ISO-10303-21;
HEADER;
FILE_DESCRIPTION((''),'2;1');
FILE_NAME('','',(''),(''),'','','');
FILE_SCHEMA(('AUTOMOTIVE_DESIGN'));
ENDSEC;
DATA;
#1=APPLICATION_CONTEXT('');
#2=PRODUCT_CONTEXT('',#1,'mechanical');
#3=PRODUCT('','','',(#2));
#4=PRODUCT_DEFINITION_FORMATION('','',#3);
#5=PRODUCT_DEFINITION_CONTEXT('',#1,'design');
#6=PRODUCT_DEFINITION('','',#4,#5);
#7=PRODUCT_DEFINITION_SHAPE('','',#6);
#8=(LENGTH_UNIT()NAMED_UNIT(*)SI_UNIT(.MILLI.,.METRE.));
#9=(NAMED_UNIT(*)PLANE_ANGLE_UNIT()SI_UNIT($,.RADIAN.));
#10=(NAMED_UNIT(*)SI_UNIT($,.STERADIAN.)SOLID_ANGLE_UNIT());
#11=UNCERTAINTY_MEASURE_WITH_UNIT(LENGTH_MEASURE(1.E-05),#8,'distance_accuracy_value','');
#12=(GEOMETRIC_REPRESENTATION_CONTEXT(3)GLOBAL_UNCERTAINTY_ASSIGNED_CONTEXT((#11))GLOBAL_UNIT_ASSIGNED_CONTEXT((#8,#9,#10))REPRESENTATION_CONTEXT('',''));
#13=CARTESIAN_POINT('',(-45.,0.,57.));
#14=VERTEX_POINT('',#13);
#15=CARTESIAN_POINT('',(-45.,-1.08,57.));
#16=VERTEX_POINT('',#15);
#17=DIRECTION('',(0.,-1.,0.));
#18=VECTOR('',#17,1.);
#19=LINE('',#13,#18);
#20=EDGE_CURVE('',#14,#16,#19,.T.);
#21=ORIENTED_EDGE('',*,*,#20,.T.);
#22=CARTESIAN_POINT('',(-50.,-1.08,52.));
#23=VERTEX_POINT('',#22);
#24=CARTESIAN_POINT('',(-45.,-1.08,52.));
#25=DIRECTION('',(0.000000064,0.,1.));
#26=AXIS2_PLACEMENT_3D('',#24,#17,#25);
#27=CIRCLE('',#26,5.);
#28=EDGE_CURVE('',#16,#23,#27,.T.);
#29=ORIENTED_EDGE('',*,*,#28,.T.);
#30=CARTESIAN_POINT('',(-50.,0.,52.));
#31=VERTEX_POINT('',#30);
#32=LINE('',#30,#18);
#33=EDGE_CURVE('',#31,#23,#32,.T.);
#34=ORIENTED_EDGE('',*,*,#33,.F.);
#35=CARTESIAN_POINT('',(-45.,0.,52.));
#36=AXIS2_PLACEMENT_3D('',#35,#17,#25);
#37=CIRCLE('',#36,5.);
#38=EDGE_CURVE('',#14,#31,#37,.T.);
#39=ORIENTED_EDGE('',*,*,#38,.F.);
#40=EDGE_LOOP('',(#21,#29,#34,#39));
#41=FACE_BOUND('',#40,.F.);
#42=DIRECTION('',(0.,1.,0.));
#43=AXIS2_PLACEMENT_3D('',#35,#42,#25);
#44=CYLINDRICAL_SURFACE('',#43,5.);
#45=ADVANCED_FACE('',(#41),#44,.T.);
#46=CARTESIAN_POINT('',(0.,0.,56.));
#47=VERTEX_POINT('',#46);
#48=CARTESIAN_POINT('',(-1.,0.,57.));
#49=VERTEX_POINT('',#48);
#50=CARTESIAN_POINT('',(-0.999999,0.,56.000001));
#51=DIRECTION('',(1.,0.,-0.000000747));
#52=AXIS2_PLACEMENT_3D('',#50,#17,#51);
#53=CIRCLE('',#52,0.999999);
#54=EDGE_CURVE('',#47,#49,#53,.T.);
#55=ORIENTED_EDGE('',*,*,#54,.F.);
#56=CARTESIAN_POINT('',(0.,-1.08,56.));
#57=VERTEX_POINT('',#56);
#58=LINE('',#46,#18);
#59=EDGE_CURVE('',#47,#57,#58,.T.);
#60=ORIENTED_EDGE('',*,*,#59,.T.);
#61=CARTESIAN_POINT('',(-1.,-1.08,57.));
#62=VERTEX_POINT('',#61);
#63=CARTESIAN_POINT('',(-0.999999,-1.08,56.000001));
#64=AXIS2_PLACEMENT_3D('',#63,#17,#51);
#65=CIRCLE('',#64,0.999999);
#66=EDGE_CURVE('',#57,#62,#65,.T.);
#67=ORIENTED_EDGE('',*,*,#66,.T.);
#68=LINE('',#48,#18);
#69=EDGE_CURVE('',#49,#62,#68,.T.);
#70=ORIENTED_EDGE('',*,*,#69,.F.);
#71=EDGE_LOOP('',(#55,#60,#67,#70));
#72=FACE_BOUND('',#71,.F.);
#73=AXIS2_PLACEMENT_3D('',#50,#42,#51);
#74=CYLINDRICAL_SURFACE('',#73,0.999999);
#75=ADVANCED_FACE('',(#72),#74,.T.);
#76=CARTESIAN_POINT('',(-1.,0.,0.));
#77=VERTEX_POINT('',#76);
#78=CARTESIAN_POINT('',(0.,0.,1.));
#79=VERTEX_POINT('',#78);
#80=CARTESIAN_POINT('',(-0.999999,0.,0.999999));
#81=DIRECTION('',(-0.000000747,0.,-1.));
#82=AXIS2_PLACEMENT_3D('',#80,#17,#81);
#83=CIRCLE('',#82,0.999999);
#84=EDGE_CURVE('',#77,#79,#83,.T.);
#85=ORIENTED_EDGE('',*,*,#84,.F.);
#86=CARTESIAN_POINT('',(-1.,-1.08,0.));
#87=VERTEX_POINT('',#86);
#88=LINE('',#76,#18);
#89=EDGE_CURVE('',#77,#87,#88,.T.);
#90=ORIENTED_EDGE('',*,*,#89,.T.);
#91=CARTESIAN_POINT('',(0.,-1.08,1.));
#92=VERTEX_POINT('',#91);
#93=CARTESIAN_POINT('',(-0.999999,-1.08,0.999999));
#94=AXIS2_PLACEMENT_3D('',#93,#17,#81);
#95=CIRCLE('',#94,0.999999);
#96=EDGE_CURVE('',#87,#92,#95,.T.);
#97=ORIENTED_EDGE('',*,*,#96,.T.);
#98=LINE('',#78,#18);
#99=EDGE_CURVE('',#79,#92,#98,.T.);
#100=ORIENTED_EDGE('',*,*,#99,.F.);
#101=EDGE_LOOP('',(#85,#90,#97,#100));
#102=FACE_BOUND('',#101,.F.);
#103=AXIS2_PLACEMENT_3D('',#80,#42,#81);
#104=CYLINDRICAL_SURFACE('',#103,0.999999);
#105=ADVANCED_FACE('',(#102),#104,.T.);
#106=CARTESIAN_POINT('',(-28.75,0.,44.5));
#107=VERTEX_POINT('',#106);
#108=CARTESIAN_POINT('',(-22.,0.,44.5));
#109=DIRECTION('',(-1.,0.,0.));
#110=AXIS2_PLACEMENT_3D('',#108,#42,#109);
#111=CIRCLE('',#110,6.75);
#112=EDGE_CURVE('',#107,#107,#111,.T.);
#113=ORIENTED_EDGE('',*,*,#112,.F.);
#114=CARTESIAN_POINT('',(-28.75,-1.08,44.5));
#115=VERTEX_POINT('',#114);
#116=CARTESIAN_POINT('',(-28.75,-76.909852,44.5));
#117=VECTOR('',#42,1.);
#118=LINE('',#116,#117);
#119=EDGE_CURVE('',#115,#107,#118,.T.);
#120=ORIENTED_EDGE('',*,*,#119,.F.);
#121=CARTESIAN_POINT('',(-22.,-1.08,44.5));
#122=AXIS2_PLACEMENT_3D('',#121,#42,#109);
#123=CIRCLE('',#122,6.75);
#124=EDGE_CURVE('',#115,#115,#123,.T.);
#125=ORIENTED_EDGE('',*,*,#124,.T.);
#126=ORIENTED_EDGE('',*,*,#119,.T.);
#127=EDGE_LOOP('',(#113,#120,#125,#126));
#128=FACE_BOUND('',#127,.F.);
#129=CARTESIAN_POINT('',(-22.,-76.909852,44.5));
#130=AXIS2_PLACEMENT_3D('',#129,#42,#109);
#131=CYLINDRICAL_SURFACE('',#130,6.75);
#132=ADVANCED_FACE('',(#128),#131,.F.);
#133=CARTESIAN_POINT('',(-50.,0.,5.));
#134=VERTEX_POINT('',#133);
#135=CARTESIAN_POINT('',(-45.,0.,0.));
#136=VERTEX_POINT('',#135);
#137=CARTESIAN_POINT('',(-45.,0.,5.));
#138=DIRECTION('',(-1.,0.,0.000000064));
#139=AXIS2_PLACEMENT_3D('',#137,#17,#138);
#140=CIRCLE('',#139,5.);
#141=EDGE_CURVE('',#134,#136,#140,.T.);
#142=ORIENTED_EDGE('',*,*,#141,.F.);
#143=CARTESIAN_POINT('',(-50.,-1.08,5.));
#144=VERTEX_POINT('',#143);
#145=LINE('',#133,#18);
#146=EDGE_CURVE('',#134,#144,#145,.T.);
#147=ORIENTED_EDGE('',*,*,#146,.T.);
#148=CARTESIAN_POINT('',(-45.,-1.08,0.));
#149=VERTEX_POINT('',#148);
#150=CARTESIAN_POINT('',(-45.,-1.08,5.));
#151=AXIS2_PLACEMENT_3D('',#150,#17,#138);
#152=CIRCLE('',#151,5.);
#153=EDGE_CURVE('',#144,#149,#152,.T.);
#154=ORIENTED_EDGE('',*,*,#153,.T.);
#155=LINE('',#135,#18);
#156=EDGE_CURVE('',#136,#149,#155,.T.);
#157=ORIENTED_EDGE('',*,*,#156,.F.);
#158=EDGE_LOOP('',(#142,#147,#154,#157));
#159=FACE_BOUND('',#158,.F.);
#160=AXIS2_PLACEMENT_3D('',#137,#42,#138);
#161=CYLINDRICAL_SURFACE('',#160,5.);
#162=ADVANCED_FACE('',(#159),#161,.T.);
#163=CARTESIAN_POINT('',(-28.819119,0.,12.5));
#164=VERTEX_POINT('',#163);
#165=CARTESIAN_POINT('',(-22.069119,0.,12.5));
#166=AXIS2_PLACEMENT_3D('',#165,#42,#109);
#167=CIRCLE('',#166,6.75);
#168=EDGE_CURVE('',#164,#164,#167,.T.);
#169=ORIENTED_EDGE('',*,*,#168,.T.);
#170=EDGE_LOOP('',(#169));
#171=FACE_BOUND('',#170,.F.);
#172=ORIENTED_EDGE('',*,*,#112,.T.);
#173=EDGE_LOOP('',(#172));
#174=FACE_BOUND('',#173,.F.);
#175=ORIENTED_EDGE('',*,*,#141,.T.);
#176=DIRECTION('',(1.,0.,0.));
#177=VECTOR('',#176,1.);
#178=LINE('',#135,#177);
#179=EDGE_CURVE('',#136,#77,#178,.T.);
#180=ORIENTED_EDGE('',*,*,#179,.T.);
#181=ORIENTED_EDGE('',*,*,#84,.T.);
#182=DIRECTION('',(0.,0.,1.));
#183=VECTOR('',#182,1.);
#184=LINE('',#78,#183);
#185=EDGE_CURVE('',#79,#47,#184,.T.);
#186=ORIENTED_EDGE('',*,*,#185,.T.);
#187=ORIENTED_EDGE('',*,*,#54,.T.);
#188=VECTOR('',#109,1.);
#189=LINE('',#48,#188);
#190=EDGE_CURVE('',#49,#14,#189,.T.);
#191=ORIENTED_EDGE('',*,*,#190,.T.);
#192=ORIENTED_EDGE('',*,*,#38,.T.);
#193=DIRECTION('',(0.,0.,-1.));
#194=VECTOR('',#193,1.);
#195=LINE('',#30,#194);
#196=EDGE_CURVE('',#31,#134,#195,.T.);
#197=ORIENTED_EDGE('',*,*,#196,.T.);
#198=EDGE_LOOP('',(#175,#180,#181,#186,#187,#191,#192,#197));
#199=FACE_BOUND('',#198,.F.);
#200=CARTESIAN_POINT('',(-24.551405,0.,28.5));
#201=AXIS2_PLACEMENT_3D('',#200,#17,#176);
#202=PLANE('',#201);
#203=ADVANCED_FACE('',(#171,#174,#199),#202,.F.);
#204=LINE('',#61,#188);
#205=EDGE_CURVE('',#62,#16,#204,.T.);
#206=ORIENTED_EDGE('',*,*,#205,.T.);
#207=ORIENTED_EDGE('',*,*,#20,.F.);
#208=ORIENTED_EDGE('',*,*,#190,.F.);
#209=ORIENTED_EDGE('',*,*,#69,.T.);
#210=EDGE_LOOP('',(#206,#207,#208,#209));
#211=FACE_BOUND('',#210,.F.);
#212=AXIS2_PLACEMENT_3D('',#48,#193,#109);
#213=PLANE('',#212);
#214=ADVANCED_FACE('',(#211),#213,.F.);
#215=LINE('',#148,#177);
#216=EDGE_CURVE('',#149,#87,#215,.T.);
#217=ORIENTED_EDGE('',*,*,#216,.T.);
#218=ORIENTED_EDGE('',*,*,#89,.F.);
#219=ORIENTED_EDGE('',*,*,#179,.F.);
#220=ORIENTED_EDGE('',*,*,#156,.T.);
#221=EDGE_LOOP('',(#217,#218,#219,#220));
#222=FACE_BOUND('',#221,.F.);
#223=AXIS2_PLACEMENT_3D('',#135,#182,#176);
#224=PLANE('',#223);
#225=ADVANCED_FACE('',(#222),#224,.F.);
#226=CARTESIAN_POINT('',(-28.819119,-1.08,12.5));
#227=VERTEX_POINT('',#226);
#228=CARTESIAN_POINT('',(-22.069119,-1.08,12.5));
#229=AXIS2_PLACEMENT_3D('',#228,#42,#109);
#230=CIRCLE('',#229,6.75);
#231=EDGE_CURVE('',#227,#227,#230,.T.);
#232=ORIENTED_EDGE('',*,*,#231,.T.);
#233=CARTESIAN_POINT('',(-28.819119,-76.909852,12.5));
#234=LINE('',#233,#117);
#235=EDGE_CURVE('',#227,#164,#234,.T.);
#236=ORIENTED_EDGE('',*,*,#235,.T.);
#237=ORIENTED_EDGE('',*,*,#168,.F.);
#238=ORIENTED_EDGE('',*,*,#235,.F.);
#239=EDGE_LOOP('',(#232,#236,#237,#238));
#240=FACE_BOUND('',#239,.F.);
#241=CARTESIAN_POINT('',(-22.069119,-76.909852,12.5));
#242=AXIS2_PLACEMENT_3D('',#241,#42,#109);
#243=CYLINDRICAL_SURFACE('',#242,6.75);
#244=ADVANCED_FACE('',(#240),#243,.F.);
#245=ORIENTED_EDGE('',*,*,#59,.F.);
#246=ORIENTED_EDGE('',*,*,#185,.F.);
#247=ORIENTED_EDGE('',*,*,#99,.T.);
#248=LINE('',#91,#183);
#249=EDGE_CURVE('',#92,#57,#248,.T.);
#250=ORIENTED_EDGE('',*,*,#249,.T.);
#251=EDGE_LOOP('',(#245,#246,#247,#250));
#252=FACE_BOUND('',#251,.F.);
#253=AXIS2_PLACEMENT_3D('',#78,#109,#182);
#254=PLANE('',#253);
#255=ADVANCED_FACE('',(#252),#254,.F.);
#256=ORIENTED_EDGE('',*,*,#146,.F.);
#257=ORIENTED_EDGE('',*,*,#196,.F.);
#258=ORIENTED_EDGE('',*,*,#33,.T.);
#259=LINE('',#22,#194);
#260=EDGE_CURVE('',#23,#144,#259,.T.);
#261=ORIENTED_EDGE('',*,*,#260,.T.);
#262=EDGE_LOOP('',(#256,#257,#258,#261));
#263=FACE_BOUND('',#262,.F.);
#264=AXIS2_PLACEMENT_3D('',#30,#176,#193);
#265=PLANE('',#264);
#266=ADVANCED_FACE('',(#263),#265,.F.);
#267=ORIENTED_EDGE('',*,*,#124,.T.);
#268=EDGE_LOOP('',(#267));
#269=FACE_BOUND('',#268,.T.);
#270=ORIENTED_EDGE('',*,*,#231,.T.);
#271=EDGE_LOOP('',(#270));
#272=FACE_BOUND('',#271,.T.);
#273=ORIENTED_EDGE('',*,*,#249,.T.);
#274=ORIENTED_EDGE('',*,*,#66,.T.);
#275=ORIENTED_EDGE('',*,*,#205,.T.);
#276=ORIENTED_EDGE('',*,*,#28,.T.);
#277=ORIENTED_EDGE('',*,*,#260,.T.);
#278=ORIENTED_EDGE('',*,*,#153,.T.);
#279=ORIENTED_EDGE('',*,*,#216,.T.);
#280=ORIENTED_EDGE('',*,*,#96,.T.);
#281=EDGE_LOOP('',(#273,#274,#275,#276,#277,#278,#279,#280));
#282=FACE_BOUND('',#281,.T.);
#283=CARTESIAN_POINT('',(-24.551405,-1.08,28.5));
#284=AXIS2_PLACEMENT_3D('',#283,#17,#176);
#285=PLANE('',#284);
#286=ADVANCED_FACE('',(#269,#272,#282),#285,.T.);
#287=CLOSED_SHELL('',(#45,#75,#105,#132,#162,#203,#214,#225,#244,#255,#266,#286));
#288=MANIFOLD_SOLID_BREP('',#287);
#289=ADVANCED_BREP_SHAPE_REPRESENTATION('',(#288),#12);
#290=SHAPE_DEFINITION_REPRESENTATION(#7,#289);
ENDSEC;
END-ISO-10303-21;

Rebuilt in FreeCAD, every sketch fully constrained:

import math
import FreeCAD as App
import Part
import Sketcher
from FreeCAD import Vector

doc = App.newDocument("Part")
body = doc.addObject("PartDesign::Body", "Body")

sketch1 = body.newObject("Sketcher::SketchObject", "Sketch")
sketch1.AttachmentSupport = (doc.getObject("XZ_Plane"), [""])
sketch1.MapMode = "FlatFace"
sketch1.addGeometry([
    Part.LineSegment(Vector(-45, 0, 0), Vector(-1, 0, 0)),
    Part.ArcOfCircle(Part.Circle(Vector(-0.999999, 0.999999, 0), Vector(0, 0, 1), 0.999999), math.radians(-90.000043), math.radians(0.000043)),
    Part.LineSegment(Vector(0, 1, 0), Vector(0, 56, 0)),
    Part.ArcOfCircle(Part.Circle(Vector(-0.999999, 56.000001, 0), Vector(0, 0, 1), 0.999999), math.radians(-0.000043), math.radians(90.000043)),
    Part.LineSegment(Vector(-1, 57, 0), Vector(-45, 57, 0)),
    Part.ArcOfCircle(Part.Circle(Vector(-45, 52, 0), Vector(0, 0, 1), 5), math.radians(89.999996), math.radians(180.000004)),
    Part.LineSegment(Vector(-50, 52, 0), Vector(-50, 5, 0)),
    Part.ArcOfCircle(Part.Circle(Vector(-45, 5, 0), Vector(0, 0, 1), 5), math.radians(179.999996), math.radians(270.000004)),
], False)
sketch1.addConstraint([
    Sketcher.Constraint("Tangent", 0, 2, 1, 1),
    Sketcher.Constraint("Tangent", 1, 2, 2, 1),
    Sketcher.Constraint("Tangent", 2, 2, 3, 1),
    Sketcher.Constraint("Tangent", 3, 2, 4, 1),
    Sketcher.Constraint("Tangent", 4, 2, 5, 1),
    Sketcher.Constraint("Tangent", 5, 2, 6, 1),
    Sketcher.Constraint("Tangent", 6, 2, 7, 1),
    Sketcher.Constraint("Tangent", 7, 2, 0, 1),
    Sketcher.Constraint("Horizontal", 0),
    Sketcher.Constraint("Vertical", 2),
    Sketcher.Constraint("Horizontal", 4),
    Sketcher.Constraint("Vertical", 6),
    Sketcher.Constraint("Equal", 1, 3),
    Sketcher.Constraint("Equal", 5, 7),
    Sketcher.Constraint("PointOnObject", 0, 2, -1),
    Sketcher.Constraint("PointOnObject", 1, 2, -2),
    Sketcher.Constraint("Radius", 1, 0.999999),
    Sketcher.Constraint("Radius", 5, 5.0),
    Sketcher.Constraint("DistanceX", 0, 1, 0, 2, 44.0),
    Sketcher.Constraint("DistanceY", 2, 1, 2, 2, 55.0),
])
pad1 = body.newObject("PartDesign::Pad", "Pad")
pad1.Profile = sketch1
pad1.Length = 1.08

sketch2 = body.newObject("Sketcher::SketchObject", "Sketch001")
sketch2.AttachmentSupport = (doc.getObject("XZ_Plane"), [""])
sketch2.MapMode = "FlatFace"
sketch2.AttachmentOffset = App.Placement(Vector(0, 0, 1.08), App.Rotation())
sketch2.addGeometry([
    Part.Circle(Vector(-22, 44.5, 0), Vector(0, 0, 1), 6.75),
    Part.Circle(Vector(-22.069119, 12.5, 0), Vector(0, 0, 1), 6.75),
], False)
sketch2.addConstraint([
    Sketcher.Constraint("Equal", 0, 1),
    Sketcher.Constraint("Diameter", 0, 13.5),
    Sketcher.Constraint("DistanceX", 0, 3, -1, 1, 22.0),
    Sketcher.Constraint("DistanceY", 1, 3, 0, 3, 32.0),
    Sketcher.Constraint("DistanceY", -1, 1, 0, 3, 44.5),
    Sketcher.Constraint("DistanceX", 1, 3, -1, 1, 22.069119),
])
doc.recompute()
hole = body.newObject("PartDesign::Hole", "Hole")
hole.Profile = sketch2
hole.ThreadType = "None"
hole.Diameter = 13.5
hole.DepthType = "ThroughAll"

doc.recompute()
